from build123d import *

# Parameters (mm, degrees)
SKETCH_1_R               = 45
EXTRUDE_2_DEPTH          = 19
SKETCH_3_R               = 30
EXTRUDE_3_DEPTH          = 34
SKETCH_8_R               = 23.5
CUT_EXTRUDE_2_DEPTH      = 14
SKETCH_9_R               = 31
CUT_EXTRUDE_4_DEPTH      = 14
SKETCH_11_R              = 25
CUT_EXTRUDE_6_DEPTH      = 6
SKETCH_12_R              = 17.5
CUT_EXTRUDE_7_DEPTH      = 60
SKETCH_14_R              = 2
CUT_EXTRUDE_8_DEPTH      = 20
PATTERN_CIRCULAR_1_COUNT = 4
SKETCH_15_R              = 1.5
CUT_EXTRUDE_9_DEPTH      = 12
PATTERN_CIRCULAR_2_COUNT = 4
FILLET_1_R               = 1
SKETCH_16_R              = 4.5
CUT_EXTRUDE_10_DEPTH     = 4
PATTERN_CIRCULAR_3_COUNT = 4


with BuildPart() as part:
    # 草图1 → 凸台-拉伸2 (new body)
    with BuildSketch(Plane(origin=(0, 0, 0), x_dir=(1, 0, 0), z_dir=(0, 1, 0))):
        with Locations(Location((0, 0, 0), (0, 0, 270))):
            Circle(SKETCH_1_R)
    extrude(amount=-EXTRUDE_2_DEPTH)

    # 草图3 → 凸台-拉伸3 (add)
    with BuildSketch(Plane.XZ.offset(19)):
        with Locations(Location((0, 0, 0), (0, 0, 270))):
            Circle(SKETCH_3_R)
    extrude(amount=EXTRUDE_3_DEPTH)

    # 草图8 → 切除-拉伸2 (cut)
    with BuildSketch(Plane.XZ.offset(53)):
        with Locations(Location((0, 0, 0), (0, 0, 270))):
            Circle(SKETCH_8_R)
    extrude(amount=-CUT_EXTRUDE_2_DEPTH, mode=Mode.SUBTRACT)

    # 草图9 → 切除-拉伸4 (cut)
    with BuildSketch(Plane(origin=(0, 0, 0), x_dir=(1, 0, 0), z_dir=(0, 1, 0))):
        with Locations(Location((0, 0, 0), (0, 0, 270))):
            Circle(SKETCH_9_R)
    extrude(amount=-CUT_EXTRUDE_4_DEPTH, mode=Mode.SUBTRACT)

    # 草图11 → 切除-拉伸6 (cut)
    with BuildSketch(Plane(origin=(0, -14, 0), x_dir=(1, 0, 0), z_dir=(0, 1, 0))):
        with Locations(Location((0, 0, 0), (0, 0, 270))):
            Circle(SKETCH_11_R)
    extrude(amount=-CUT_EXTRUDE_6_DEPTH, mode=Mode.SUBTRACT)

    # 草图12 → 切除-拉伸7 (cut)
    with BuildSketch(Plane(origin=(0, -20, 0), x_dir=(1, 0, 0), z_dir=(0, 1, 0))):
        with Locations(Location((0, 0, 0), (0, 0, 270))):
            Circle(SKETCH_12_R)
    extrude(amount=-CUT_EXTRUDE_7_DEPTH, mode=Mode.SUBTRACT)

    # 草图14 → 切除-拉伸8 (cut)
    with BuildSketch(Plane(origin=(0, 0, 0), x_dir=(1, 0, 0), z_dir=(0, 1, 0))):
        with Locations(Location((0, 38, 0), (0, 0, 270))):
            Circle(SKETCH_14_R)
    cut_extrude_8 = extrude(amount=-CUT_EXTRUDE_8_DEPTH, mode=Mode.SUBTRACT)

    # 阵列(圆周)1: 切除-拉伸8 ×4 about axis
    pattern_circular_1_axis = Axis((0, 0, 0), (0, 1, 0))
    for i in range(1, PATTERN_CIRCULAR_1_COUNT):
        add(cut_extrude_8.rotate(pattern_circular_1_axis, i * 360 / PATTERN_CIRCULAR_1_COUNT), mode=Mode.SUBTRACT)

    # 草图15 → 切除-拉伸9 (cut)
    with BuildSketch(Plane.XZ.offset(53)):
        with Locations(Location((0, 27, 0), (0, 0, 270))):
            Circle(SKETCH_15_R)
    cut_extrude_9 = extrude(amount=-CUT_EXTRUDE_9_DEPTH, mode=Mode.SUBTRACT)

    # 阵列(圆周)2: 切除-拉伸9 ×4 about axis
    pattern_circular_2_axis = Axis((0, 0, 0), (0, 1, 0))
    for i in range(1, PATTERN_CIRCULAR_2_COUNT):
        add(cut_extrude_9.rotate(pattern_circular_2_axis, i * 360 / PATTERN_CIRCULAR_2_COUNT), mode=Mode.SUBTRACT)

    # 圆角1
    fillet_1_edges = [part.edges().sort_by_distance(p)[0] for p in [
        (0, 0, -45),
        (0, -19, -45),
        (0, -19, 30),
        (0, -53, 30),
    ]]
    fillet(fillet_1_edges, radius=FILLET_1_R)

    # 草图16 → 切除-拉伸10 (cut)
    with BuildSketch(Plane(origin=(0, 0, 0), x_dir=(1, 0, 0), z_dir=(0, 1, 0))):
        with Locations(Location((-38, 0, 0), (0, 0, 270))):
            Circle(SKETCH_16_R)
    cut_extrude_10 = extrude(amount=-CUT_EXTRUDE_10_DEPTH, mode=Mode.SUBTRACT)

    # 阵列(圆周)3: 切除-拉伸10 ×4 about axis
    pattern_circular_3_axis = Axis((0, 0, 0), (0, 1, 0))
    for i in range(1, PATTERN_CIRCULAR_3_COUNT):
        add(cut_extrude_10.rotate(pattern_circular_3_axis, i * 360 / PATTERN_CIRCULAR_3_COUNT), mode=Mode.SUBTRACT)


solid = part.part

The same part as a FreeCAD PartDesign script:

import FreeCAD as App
import Part
import Sketcher


def edges_at(feature, points):
    """Names of the edges that pass closest to the given points."""
    edges = feature.Shape.Edges
    near = lambda p: min(range(len(edges)), key=lambda i: edges[i].distToShape(Part.Vertex(*p))[0])
    return sorted({f"Edge{near(p) + 1}" for p in points})

doc = App.newDocument("Part")
body = doc.addObject("PartDesign::Body", "Body")

# Sketch on XZ plane
sketch1 = doc.addObject("Sketcher::SketchObject", "Sketch")
body.addObject(sketch1)
sketch1.AttachmentSupport = (doc.XZ_Plane, [""])
sketch1.MapMode = "FlatFace"
sketch1.addGeometry(Part.Circle(App.Vector(0, 0, 0), App.Vector(0, 0, 1), 45), False)
sketch1.addConstraint(Sketcher.Constraint("Coincident", 0, 3, -1, 1))
sketch1.addConstraint(Sketcher.Constraint("Diameter", 0, 90.0))
pad1 = doc.addObject("PartDesign::Pad", "Pad")
body.addObject(pad1)
pad1.Profile = sketch1
pad1.Length = 19

# Sketch on XZ plane
sketch2 = doc.addObject("Sketcher::SketchObject", "Sketch001")
body.addObject(sketch2)
sketch2.AttachmentSupport = (doc.XZ_Plane, [""])
sketch2.MapMode = "FlatFace"
sketch2.AttachmentOffset = App.Placement(App.Vector(0, 0, 19), App.Rotation())
sketch2.addGeometry(Part.Circle(App.Vector(0, 0, 0), App.Vector(0, 0, 1), 30), False)
sketch2.addConstraint(Sketcher.Constraint("Coincident", 0, 3, -1, 1))
sketch2.addConstraint(Sketcher.Constraint("Diameter", 0, 60.0))
pad2 = doc.addObject("PartDesign::Pad", "Pad001")
body.addObject(pad2)
pad2.Profile = sketch2
pad2.Length = 34

# Sketch on XZ plane
sketch3 = doc.addObject("Sketcher::SketchObject", "Sketch002")
body.addObject(sketch3)
sketch3.AttachmentSupport = (doc.XZ_Plane, [""])
sketch3.MapMode = "FlatFace"
sketch3.AttachmentOffset = App.Placement(App.Vector(0, 0, 53), App.Rotation())
sketch3.addGeometry(Part.Circle(App.Vector(0, 0, 0), App.Vector(0, 0, 1), 23.5), False)
sketch3.addConstraint(Sketcher.Constraint("Coincident", 0, 3, -1, 1))
sketch3.addConstraint(Sketcher.Constraint("Diameter", 0, 47.0))
pocket1 = doc.addObject("PartDesign::Pocket", "Pocket")
body.addObject(pocket1)
pocket1.Profile = sketch3
pocket1.Length = 14

# Sketch on XZ plane
sketch4 = doc.addObject("Sketcher::SketchObject", "Sketch003")
body.addObject(sketch4)
sketch4.AttachmentSupport = (doc.XZ_Plane, [""])
sketch4.MapMode = "FlatFace"
sketch4.addGeometry(Part.Circle(App.Vector(0, 0, 0), App.Vector(0, 0, 1), 31), False)
sketch4.addConstraint(Sketcher.Constraint("Coincident", 0, 3, -1, 1))
sketch4.addConstraint(Sketcher.Constraint("Diameter", 0, 62.0))
pocket2 = doc.addObject("PartDesign::Pocket", "Pocket001")
body.addObject(pocket2)
pocket2.Profile = sketch4
pocket2.Length = 14
pocket2.Reversed = True

# Sketch on XZ plane
sketch5 = doc.addObject("Sketcher::SketchObject", "Sketch004")
body.addObject(sketch5)
sketch5.AttachmentSupport = (doc.XZ_Plane, [""])
sketch5.MapMode = "FlatFace"
sketch5.AttachmentOffset = App.Placement(App.Vector(0, 0, 14), App.Rotation())
sketch5.addGeometry(Part.Circle(App.Vector(0, 0, 0), App.Vector(0, 0, 1), 25), False)
sketch5.addConstraint(Sketcher.Constraint("Coincident", 0, 3, -1, 1))
sketch5.addConstraint(Sketcher.Constraint("Diameter", 0, 50.0))
pocket3 = doc.addObject("PartDesign::Pocket", "Pocket002")
body.addObject(pocket3)
pocket3.Profile = sketch5
pocket3.Length = 6
pocket3.Reversed = True

# Sketch on XZ plane
sketch6 = doc.addObject("Sketcher::SketchObject", "Sketch005")
body.addObject(sketch6)
sketch6.AttachmentSupport = (doc.XZ_Plane, [""])
sketch6.MapMode = "FlatFace"
sketch6.AttachmentOffset = App.Placement(App.Vector(0, 0, 20), App.Rotation())
sketch6.addGeometry(Part.Circle(App.Vector(0, 0, 0), App.Vector(0, 0, 1), 17.5), False)
sketch6.addConstraint(Sketcher.Constraint("Coincident", 0, 3, -1, 1))
sketch6.addConstraint(Sketcher.Constraint("Diameter", 0, 35.0))
pocket4 = doc.addObject("PartDesign::Pocket", "Pocket003")
body.addObject(pocket4)
pocket4.Profile = sketch6
pocket4.Length = 60
pocket4.Reversed = True

# Sketch on XZ plane
sketch7 = doc.addObject("Sketcher::SketchObject", "Sketch006")
body.addObject(sketch7)
sketch7.AttachmentSupport = (doc.XZ_Plane, [""])
sketch7.MapMode = "FlatFace"
sketch7.addGeometry(Part.Circle(App.Vector(0, -38, 0), App.Vector(0, 0, 1), 2), False)
sketch7.addConstraint(Sketcher.Constraint("PointOnObject", 0, 3, -2))
sketch7.addConstraint(Sketcher.Constraint("Diameter", 0, 4.0))
sketch7.addConstraint(Sketcher.Constraint("DistanceY", 0, 3, -1, 1, 38.0))
pocket5 = doc.addObject("PartDesign::Pocket", "Pocket004")
body.addObject(pocket5)
pocket5.Profile = sketch7
pocket5.Length = 20
pocket5.Reversed = True
doc.recompute()

polarpattern = doc.addObject("PartDesign::PolarPattern", "PolarPattern")
body.addObject(polarpattern)
polarpattern.Originals = [pocket5]
polarpattern.Axis = (doc.Y_Axis, [""])
polarpattern.Angle = 360
polarpattern.Occurrences = 4
body.Tip = polarpattern

# Sketch on XZ plane
sketch8 = doc.addObject("Sketcher::SketchObject", "Sketch007")
body.addObject(sketch8)
sketch8.AttachmentSupport = (doc.XZ_Plane, [""])
sketch8.MapMode = "FlatFace"
sketch8.AttachmentOffset = App.Placement(App.Vector(0, 0, 53), App.Rotation())
sketch8.addGeometry(Part.Circle(App.Vector(0, 27, 0), App.Vector(0, 0, 1), 1.5), False)
sketch8.addConstraint(Sketcher.Constraint("PointOnObject", 0, 3, -2))
sketch8.addConstraint(Sketcher.Constraint("Diameter", 0, 3.0))
sketch8.addConstraint(Sketcher.Constraint("DistanceY", -1, 1, 0, 3, 27.0))
pocket6 = doc.addObject("PartDesign::Pocket", "Pocket005")
body.addObject(pocket6)
pocket6.Profile = sketch8
pocket6.Length = 12
doc.recompute()

polarpattern2 = doc.addObject("PartDesign::PolarPattern", "PolarPattern001")
body.addObject(polarpattern2)
polarpattern2.Originals = [pocket6]
polarpattern2.Axis = (doc.Y_Axis, [""])
polarpattern2.Angle = 360
polarpattern2.Occurrences = 4
body.Tip = polarpattern2
doc.recompute()

fillet = doc.addObject("PartDesign::Fillet", "Fillet")
body.addObject(fillet)
fillet.Base = (polarpattern2, edges_at(polarpattern2, [
    (0, 0, -45),
    (0, -19, -45),
    (0, -19, 30),
    (0, -53, 30),
]))
fillet.Radius = 1

# Sketch on XZ plane
sketch9 = doc.addObject("Sketcher::SketchObject", "Sketch008")
body.addObject(sketch9)
sketch9.AttachmentSupport = (doc.XZ_Plane, [""])
sketch9.MapMode = "FlatFace"
sketch9.addGeometry(Part.Circle(App.Vector(-38, 0, 0), App.Vector(0, 0, 1), 4.5), False)
sketch9.addConstraint(Sketcher.Constraint("PointOnObject", 0, 3, -1))
sketch9.addConstraint(Sketcher.Constraint("Diameter", 0, 9.0))
sketch9.addConstraint(Sketcher.Constraint("DistanceX", 0, 3, -1, 1, 38.0))
pocket7 = doc.addObject("PartDesign::Pocket", "Pocket006")
body.addObject(pocket7)
pocket7.Profile = sketch9
pocket7.Length = 4
pocket7.Reversed = True
doc.recompute()

polarpattern3 = doc.addObject("PartDesign::PolarPattern", "PolarPattern002")
body.addObject(polarpattern3)
polarpattern3.Originals = [pocket7]
polarpattern3.Axis = (doc.Y_Axis, [""])
polarpattern3.Angle = 360
polarpattern3.Occurrences = 4
body.Tip = polarpattern3

doc.recompute()
